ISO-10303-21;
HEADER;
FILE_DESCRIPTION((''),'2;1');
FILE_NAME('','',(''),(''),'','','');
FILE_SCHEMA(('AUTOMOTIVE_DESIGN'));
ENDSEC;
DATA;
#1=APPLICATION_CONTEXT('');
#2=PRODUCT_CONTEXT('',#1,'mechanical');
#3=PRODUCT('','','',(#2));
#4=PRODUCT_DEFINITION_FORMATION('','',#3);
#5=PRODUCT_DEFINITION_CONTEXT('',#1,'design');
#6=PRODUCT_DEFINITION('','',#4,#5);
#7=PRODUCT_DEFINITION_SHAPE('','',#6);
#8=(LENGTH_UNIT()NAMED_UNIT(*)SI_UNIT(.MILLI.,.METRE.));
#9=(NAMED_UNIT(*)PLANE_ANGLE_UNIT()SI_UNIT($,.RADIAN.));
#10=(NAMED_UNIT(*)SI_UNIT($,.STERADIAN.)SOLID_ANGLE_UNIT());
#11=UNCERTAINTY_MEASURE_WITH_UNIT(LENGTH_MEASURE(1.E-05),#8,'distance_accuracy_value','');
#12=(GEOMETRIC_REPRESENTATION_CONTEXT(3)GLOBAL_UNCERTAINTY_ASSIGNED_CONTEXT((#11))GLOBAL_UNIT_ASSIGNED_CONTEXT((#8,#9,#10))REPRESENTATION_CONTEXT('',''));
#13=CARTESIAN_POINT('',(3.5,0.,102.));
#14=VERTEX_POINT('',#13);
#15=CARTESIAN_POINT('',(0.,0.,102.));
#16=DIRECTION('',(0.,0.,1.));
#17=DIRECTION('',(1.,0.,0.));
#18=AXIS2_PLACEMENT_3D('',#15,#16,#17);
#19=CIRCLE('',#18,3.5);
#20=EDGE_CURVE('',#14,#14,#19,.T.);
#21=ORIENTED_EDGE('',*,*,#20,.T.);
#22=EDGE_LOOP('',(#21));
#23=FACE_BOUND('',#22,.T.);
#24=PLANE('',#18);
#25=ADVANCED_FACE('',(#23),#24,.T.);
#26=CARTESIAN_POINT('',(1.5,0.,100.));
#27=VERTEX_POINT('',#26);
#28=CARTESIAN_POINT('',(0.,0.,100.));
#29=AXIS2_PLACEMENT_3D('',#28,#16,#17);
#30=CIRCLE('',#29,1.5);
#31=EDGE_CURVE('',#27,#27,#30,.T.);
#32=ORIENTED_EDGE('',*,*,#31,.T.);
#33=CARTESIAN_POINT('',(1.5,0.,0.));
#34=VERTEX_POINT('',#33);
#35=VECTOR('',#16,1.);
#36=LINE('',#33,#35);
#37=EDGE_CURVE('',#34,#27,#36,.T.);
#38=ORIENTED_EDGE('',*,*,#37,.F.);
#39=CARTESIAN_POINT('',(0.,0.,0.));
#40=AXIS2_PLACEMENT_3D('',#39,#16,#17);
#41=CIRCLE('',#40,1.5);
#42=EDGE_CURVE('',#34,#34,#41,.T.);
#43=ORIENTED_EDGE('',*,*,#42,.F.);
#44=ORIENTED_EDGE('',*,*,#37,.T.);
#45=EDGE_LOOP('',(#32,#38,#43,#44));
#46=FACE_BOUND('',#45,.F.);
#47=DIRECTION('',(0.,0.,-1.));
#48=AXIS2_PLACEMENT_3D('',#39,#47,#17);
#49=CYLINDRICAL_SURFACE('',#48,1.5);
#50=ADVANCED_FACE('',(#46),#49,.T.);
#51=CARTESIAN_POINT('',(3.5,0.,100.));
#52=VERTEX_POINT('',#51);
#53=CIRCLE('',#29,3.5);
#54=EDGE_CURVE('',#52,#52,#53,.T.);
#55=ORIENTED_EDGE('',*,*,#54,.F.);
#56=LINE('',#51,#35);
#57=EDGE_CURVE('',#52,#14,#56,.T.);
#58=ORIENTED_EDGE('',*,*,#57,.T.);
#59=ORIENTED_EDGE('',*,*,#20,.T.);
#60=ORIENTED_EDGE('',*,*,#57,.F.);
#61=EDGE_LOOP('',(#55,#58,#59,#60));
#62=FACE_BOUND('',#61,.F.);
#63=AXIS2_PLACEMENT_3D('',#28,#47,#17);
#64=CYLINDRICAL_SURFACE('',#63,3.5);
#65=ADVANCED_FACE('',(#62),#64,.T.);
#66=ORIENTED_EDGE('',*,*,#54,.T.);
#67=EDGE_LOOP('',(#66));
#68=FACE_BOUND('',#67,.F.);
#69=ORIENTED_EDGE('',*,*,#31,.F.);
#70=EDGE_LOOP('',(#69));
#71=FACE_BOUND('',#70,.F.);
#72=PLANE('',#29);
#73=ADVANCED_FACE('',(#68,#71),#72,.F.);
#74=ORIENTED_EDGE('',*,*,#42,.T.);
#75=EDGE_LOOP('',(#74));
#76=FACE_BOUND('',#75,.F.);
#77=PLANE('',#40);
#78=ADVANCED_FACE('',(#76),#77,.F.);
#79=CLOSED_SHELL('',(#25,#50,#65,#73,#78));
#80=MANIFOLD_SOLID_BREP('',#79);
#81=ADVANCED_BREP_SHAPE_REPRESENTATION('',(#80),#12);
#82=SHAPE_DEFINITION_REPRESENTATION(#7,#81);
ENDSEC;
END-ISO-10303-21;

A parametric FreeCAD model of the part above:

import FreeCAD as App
import Part
import Sketcher
Q = App.Units.Quantity

doc = App.newDocument("Part")
params = doc.addObject("Spreadsheet::Sheet", "Params")
for row, (alias, value) in enumerate([
    ("sketch1_diameter", "3 mm"),
    ("pad1_length", "100 mm"),
    ("sketch2_diameter", "7 mm"),
    ("pad2_length", "2 mm"),
], start=1):
    params.set(f"A{row}", alias)
    params.set(f"B{row}", "=" + value)
    params.setAlias(f"B{row}", alias)

body = doc.addObject("PartDesign::Body", "Body")

sketch1 = body.newObject("Sketcher::SketchObject", "Sketch")
sketch1.AttachmentSupport = (doc.getObject("XY_Plane"), [""])
sketch1.MapMode = "FlatFace"
sketch1.addGeometry(Part.Circle(App.Vector(0, 0, 0), App.Vector(0, 0, 1), 1.5), False)
sketch1.addConstraint([
    Sketcher.Constraint("Coincident", 0, 3, -1, 1),
    Sketcher.Constraint("Diameter", 0, Q("3 mm")),
])
sketch1.setExpression("Constraints[1]", "Params.sketch1_diameter")
pad1 = body.newObject("PartDesign::Pad", "Pad")
pad1.Profile = sketch1
pad1.setExpression("Length", "Params.pad1_length")

sketch2 = body.newObject("Sketcher::SketchObject", "Sketch001")
sketch2.AttachmentSupport = (doc.getObject("XY_Plane"), [""])
sketch2.MapMode = "FlatFace"
sketch2.AttachmentOffset = App.Placement(App.Vector(0, 0, 100), App.Rotation())
sketch2.addGeometry(Part.Circle(App.Vector(0, 0, 0), App.Vector(0, 0, 1), 3.5), False)
sketch2.addConstraint([
    Sketcher.Constraint("Coincident", 0, 3, -1, 1),
    Sketcher.Constraint("Diameter", 0, Q("7 mm")),
])
sketch2.setExpression("Constraints[1]", "Params.sketch2_diameter")
pad2 = body.newObject("PartDesign::Pad", "Pad001")
pad2.Profile = sketch2
pad2.setExpression("Length", "Params.pad2_length")

doc.recompute()
